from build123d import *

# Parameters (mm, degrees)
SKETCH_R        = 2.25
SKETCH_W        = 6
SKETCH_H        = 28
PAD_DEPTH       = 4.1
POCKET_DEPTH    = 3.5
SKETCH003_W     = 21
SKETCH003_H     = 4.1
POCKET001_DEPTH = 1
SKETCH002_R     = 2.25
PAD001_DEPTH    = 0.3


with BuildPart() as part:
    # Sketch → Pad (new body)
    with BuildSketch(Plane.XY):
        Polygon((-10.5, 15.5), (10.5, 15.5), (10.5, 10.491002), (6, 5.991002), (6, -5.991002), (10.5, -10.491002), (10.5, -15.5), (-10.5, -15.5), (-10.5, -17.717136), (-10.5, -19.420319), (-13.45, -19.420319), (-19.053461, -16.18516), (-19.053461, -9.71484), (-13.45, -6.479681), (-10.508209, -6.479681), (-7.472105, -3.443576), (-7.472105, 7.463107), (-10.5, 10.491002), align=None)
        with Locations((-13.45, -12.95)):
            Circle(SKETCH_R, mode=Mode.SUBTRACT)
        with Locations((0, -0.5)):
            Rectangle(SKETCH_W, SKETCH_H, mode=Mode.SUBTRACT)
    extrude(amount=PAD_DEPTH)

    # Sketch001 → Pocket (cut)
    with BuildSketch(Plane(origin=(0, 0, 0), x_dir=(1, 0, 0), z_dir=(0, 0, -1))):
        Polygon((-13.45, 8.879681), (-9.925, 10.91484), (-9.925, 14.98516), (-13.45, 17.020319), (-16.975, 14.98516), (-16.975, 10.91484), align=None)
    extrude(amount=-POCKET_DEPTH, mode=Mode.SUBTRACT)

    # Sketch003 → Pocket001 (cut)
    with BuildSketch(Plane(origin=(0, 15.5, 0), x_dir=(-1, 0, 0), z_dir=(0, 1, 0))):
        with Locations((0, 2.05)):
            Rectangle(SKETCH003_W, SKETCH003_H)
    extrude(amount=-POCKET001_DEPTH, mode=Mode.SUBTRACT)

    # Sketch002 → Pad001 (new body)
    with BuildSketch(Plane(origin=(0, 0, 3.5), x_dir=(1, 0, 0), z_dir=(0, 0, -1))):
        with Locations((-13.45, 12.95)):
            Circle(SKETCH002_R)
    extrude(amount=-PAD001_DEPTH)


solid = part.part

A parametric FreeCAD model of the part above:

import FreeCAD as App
import Part
import Sketcher
from FreeCAD import Vector
Q = App.Units.Quantity

doc = App.newDocument("Part")
body = doc.addObject("PartDesign::Body", "Body")

# Sketch on XY plane
sketch1 = body.newObject("Sketcher::SketchObject", "Sketch")
sketch1.AttachmentSupport = (doc.getObject("XY_Plane"), [""])
sketch1.MapMode = "FlatFace"
sketch1.addGeometry([
    Part.LineSegment(Vector(10.5, 15.5, 0), Vector(-10.5, 15.5, 0)),  # 0
    Part.LineSegment(Vector(-10.5, 15.5, 0), Vector(-10.5, 10.491002, 0)),  # 1
    Part.LineSegment(Vector(-10.5, 10.491002, 0), Vector(-7.472105, 7.463107, 0)),  # 2
    Part.LineSegment(Vector(-7.472105, 7.463107, 0), Vector(-7.472105, -3.443576, 0)),  # 3
    Part.LineSegment(Vector(-7.472105, -3.443576, 0), Vector(-10.508209, -6.479681, 0)),  # 4
    Part.LineSegment(Vector(-10.508209, -6.479681, 0), Vector(-13.45, -6.479681, 0)),  # 5
    Part.LineSegment(Vector(-13.45, -6.479681, 0), Vector(-19.053461, -9.71484, 0)),  # 6
    Part.LineSegment(Vector(-19.053461, -9.71484, 0), Vector(-19.053461, -16.18516, 0)),  # 7
    Part.LineSegment(Vector(-19.053461, -16.18516, 0), Vector(-13.45, -19.420319, 0)),  # 8
    Part.LineSegment(Vector(-13.45, -19.420319, 0), Vector(-10.5, -19.420319, 0)),  # 9
    Part.LineSegment(Vector(-10.5, -19.420319, 0), Vector(-10.5, -15.5, 0)),  # 10
    Part.LineSegment(Vector(-10.5, -15.5, 0), Vector(10.5, -15.5, 0)),  # 11
    Part.LineSegment(Vector(10.5, -15.5, 0), Vector(10.5, -10.491002, 0)),  # 12
    Part.LineSegment(Vector(10.5, -10.491002, 0), Vector(6, -5.991002, 0)),  # 13
    Part.LineSegment(Vector(6, -5.991002, 0), Vector(6, 5.991002, 0)),  # 14
    Part.LineSegment(Vector(6, 5.991002, 0), Vector(10.5, 10.491002, 0)),  # 15
    Part.LineSegment(Vector(10.5, 10.491002, 0), Vector(10.5, 15.5, 0)),  # 16
    Part.Circle(Vector(-13.45, -12.95, 0), Vector(0, 0, 1), 2.25),  # 17
    Part.LineSegment(Vector(-3, -14.5, 0), Vector(-3, 13.5, 0)),  # 18
    Part.LineSegment(Vector(-3, 13.5, 0), Vector(3, 13.5, 0)),  # 19
    Part.LineSegment(Vector(3, 13.5, 0), Vector(3, -14.5, 0)),  # 20
    Part.LineSegment(Vector(3, -14.5, 0), Vector(-3, -14.5, 0)),  # 21
], False)
sketch1.addConstraint([
    Sketcher.Constraint("Coincident", 0, 2, 1, 1),
    Sketcher.Constraint("Coincident", 1, 2, 2, 1),
    Sketcher.Constraint("Coincident", 2, 2, 3, 1),
    Sketcher.Constraint("Coincident", 3, 2, 4, 1),
    Sketcher.Constraint("Coincident", 4, 2, 5, 1),
    Sketcher.Constraint("Coincident", 5, 2, 6, 1),
    Sketcher.Constraint("Coincident", 6, 2, 7, 1),
    Sketcher.Constraint("Coincident", 7, 2, 8, 1),
    Sketcher.Constraint("Coincident", 8, 2, 9, 1),
    Sketcher.Constraint("Coincident", 9, 2, 10, 1),
    Sketcher.Constraint("Coincident", 10, 2, 11, 1),
    Sketcher.Constraint("Coincident", 11, 2, 12, 1),
    Sketcher.Constraint("Coincident", 12, 2, 13, 1),
    Sketcher.Constraint("Coincident", 13, 2, 14, 1),
    Sketcher.Constraint("Coincident", 14, 2, 15, 1),
    Sketcher.Constraint("Coincident", 15, 2, 16, 1),
    Sketcher.Constraint("Coincident", 16, 2, 0, 1),
    Sketcher.Constraint("Coincident", 18, 2, 19, 1),
    Sketcher.Constraint("Coincident", 19, 2, 20, 1),
    Sketcher.Constraint("Coincident", 20, 2, 21, 1),
    Sketcher.Constraint("Coincident", 21, 2, 18, 1),
    Sketcher.Constraint("Horizontal", 0),
    Sketcher.Constraint("Vertical", 1),
    Sketcher.Constraint("Vertical", 3),
    Sketcher.Constraint("Horizontal", 5),
    Sketcher.Constraint("Vertical", 7),
    Sketcher.Constraint("Horizontal", 9),
    Sketcher.Constraint("Vertical", 10),
    Sketcher.Constraint("Horizontal", 11),
    Sketcher.Constraint("Vertical", 12),
    Sketcher.Constraint("Vertical", 14),
    Sketcher.Constraint("Vertical", 16),
    Sketcher.Constraint("Vertical", 18),
    Sketcher.Constraint("Horizontal", 19),
    Sketcher.Constraint("Vertical", 20),
    Sketcher.Constraint("Horizontal", 21),
    Sketcher.Constraint("Symmetric", 0, 2, 11, 2, -1, 1),
    Sketcher.Constraint("Symmetric", 1, 2, 15, 2, -2),
    Sketcher.Constraint("Perpendicular", 2, 4),
    Sketcher.Constraint("Perpendicular", 4, 13),
    Sketcher.Constraint("Perpendicular", 13, 15),
    Sketcher.Constraint("Vertical", 17, 3, 5, 2),
    Sketcher.Constraint("Vertical", 5, 2, 8, 2),
    Sketcher.Constraint("Vertical", 1, 2, 9, 2),
    Sketcher.Constraint("Equal", 1, 12),
    Sketcher.Constraint("Equal", 6, 8),
    Sketcher.Constraint("Equal", 13, 15),
    Sketcher.Constraint("Diameter", 17, 4.5),
    Sketcher.Constraint("DistanceX", 0, 2, 0, 1, 21.0),
    Sketcher.Constraint("DistanceX", 19, 1, 19, 2, 6.0),
    Sketcher.Constraint("DistanceY", 18, 1, 18, 2, 28.0),
    Sketcher.Constraint("Angle", 6, Q("-150.000005 deg")),
    Sketcher.Constraint("DistanceX", -1, 1, 13, 2, 6.0),
    Sketcher.Constraint("DistanceX", 18, 2, -1, 1, 3.0),
    Sketcher.Constraint("DistanceY", 18, 2, 0, 2, 2.0),
    Sketcher.Constraint("DistanceY", 11, 2, 20, 2, 1.0),
    Sketcher.Constraint("DistanceX", 9, 1, 9, 2, 2.95),
    Sketcher.Constraint("DistanceY", 17, 3, -1, 1, 12.95),
    Sketcher.Constraint("DistanceY", 17, 3, 1, 2, 23.441002),
    Sketcher.Constraint("Distance", 4, 4.2937),
    Sketcher.Constraint("DistanceX", 5, 2, 5, 1, 2.941791),
    Sketcher.Constraint("DistanceY", 7, 2, 7, 1, 6.47032),
    Sketcher.Constraint("DistanceY", 10, 1, 10, 2, 3.920319),
    Sketcher.Constraint("Distance", 6, 6.470319),
])
pad1 = body.newObject("PartDesign::Pad", "Pad")
pad1.Profile = sketch1
pad1.Length = 4.1

# Sketch on XY plane
sketch2 = body.newObject("Sketcher::SketchObject", "Sketch001")
sketch2.AttachmentSupport = (doc.getObject("XY_Plane"), [""])
sketch2.MapMode = "FlatFace"
sketch2.addGeometry([
    Part.LineSegment(Vector(-13.45, -8.879681, 0), Vector(-9.925, -10.91484, 0)),  # 0
    Part.LineSegment(Vector(-9.925, -10.91484, 0), Vector(-9.925, -14.98516, 0)),  # 1
    Part.LineSegment(Vector(-9.925, -14.98516, 0), Vector(-13.45, -17.020319, 0)),  # 2
    Part.LineSegment(Vector(-13.45, -17.020319, 0), Vector(-16.975, -14.98516, 0)),  # 3
    Part.LineSegment(Vector(-16.975, -14.98516, 0), Vector(-16.975, -10.91484, 0)),  # 4
    Part.LineSegment(Vector(-16.975, -10.91484, 0), Vector(-13.45, -8.879681, 0)),  # 5
], False)
sketch2.addConstraint([
    Sketcher.Constraint("Coincident", 0, 2, 1, 1),
    Sketcher.Constraint("Coincident", 1, 2, 2, 1),
    Sketcher.Constraint("Coincident", 2, 2, 3, 1),
    Sketcher.Constraint("Coincident", 3, 2, 4, 1),
    Sketcher.Constraint("Coincident", 4, 2, 5, 1),
    Sketcher.Constraint("Coincident", 5, 2, 0, 1),
    Sketcher.Constraint("Vertical", 1),
    Sketcher.Constraint("Vertical", 4),
    Sketcher.Constraint("Parallel", 0, 3),
    Sketcher.Constraint("Parallel", 2, 5),
    Sketcher.Constraint("Horizontal", 1, 2, 3, 2),
    Sketcher.Constraint("Horizontal", 0, 2, 4, 2),
    Sketcher.Constraint("Vertical", 2, 2, 5, 2),
    Sketcher.Constraint("Angle", 0, Q("-29.999991 deg")),
    Sketcher.Constraint("DistanceX", 2, 2, -1, 1, 13.45),
    Sketcher.Constraint("DistanceX", 3, 2, 1, 2, 7.05),
    Sketcher.Constraint("DistanceY", 1, 2, 1, 1, 4.07032),
    Sketcher.Constraint("DistanceY", 0, 2, -1, 1, 10.91484),
])
pocket1 = body.newObject("PartDesign::Pocket", "Pocket")
pocket1.Profile = sketch2
pocket1.Length = 3.5
pocket1.Reversed = True

# Sketch on XZ plane
sketch3 = body.newObject("Sketcher::SketchObject", "Sketch002")
sketch3.AttachmentSupport = (doc.getObject("XZ_Plane"), [""])
sketch3.MapMode = "FlatFace"
sketch3.AttachmentOffset = App.Placement(Vector(0, 0, -15.5), App.Rotation())
sketch3.addGeometry([
    Part.LineSegment(Vector(10.5, 4.1, 0), Vector(10.5, 0, 0)),
    Part.LineSegment(Vector(10.5, 0, 0), Vector(-10.5, 0, 0)),
    Part.LineSegment(Vector(-10.5, 0, 0), Vector(-10.5, 4.1, 0)),
    Part.LineSegment(Vector(-10.5, 4.1, 0), Vector(10.5, 4.1, 0)),
], False)
sketch3.addConstraint([
    Sketcher.Constraint("Coincident", 0, 2, 1, 1),
    Sketcher.Constraint("Coincident", 1, 2, 2, 1),
    Sketcher.Constraint("Coincident", 2, 2, 3, 1),
    Sketcher.Constraint("Coincident", 3, 2, 0, 1),
    Sketcher.Constraint("Vertical", 0),
    Sketcher.Constraint("Horizontal", 1),
    Sketcher.Constraint("Vertical", 2),
    Sketcher.Constraint("Horizontal", 3),
    Sketcher.Constraint("Symmetric", 0, 2, 1, 2, -1, 1),
    Sketcher.Constraint("DistanceX", 1, 2, 1, 1, 21.0),
    Sketcher.Constraint("DistanceY", 0, 2, 0, 1, 4.1),
])
pocket2 = body.newObject("PartDesign::Pocket", "Pocket001")
pocket2.Profile = sketch3
pocket2.Length = 1
pocket2.Reversed = True

# Sketch on XY plane
sketch4 = body.newObject("Sketcher::SketchObject", "Sketch003")
sketch4.AttachmentSupport = (doc.getObject("XY_Plane"), [""])
sketch4.MapMode = "FlatFace"
sketch4.AttachmentOffset = App.Placement(Vector(0, 0, 3.5), App.Rotation())
sketch4.addGeometry(Part.Circle(Vector(-13.45, -12.95, 0), Vector(0, 0, 1), 2.25), False)
sketch4.addConstraint([
    Sketcher.Constraint("Diameter", 0, 4.5),
    Sketcher.Constraint("DistanceX", 0, 3, -1, 1, 13.45),
    Sketcher.Constraint("DistanceY", 0, 3, -1, 1, 12.95),
])
pad2 = body.newObject("PartDesign::Pad", "Pad001")
pad2.Profile = sketch4
pad2.Length = 0.3

doc.recompute()
